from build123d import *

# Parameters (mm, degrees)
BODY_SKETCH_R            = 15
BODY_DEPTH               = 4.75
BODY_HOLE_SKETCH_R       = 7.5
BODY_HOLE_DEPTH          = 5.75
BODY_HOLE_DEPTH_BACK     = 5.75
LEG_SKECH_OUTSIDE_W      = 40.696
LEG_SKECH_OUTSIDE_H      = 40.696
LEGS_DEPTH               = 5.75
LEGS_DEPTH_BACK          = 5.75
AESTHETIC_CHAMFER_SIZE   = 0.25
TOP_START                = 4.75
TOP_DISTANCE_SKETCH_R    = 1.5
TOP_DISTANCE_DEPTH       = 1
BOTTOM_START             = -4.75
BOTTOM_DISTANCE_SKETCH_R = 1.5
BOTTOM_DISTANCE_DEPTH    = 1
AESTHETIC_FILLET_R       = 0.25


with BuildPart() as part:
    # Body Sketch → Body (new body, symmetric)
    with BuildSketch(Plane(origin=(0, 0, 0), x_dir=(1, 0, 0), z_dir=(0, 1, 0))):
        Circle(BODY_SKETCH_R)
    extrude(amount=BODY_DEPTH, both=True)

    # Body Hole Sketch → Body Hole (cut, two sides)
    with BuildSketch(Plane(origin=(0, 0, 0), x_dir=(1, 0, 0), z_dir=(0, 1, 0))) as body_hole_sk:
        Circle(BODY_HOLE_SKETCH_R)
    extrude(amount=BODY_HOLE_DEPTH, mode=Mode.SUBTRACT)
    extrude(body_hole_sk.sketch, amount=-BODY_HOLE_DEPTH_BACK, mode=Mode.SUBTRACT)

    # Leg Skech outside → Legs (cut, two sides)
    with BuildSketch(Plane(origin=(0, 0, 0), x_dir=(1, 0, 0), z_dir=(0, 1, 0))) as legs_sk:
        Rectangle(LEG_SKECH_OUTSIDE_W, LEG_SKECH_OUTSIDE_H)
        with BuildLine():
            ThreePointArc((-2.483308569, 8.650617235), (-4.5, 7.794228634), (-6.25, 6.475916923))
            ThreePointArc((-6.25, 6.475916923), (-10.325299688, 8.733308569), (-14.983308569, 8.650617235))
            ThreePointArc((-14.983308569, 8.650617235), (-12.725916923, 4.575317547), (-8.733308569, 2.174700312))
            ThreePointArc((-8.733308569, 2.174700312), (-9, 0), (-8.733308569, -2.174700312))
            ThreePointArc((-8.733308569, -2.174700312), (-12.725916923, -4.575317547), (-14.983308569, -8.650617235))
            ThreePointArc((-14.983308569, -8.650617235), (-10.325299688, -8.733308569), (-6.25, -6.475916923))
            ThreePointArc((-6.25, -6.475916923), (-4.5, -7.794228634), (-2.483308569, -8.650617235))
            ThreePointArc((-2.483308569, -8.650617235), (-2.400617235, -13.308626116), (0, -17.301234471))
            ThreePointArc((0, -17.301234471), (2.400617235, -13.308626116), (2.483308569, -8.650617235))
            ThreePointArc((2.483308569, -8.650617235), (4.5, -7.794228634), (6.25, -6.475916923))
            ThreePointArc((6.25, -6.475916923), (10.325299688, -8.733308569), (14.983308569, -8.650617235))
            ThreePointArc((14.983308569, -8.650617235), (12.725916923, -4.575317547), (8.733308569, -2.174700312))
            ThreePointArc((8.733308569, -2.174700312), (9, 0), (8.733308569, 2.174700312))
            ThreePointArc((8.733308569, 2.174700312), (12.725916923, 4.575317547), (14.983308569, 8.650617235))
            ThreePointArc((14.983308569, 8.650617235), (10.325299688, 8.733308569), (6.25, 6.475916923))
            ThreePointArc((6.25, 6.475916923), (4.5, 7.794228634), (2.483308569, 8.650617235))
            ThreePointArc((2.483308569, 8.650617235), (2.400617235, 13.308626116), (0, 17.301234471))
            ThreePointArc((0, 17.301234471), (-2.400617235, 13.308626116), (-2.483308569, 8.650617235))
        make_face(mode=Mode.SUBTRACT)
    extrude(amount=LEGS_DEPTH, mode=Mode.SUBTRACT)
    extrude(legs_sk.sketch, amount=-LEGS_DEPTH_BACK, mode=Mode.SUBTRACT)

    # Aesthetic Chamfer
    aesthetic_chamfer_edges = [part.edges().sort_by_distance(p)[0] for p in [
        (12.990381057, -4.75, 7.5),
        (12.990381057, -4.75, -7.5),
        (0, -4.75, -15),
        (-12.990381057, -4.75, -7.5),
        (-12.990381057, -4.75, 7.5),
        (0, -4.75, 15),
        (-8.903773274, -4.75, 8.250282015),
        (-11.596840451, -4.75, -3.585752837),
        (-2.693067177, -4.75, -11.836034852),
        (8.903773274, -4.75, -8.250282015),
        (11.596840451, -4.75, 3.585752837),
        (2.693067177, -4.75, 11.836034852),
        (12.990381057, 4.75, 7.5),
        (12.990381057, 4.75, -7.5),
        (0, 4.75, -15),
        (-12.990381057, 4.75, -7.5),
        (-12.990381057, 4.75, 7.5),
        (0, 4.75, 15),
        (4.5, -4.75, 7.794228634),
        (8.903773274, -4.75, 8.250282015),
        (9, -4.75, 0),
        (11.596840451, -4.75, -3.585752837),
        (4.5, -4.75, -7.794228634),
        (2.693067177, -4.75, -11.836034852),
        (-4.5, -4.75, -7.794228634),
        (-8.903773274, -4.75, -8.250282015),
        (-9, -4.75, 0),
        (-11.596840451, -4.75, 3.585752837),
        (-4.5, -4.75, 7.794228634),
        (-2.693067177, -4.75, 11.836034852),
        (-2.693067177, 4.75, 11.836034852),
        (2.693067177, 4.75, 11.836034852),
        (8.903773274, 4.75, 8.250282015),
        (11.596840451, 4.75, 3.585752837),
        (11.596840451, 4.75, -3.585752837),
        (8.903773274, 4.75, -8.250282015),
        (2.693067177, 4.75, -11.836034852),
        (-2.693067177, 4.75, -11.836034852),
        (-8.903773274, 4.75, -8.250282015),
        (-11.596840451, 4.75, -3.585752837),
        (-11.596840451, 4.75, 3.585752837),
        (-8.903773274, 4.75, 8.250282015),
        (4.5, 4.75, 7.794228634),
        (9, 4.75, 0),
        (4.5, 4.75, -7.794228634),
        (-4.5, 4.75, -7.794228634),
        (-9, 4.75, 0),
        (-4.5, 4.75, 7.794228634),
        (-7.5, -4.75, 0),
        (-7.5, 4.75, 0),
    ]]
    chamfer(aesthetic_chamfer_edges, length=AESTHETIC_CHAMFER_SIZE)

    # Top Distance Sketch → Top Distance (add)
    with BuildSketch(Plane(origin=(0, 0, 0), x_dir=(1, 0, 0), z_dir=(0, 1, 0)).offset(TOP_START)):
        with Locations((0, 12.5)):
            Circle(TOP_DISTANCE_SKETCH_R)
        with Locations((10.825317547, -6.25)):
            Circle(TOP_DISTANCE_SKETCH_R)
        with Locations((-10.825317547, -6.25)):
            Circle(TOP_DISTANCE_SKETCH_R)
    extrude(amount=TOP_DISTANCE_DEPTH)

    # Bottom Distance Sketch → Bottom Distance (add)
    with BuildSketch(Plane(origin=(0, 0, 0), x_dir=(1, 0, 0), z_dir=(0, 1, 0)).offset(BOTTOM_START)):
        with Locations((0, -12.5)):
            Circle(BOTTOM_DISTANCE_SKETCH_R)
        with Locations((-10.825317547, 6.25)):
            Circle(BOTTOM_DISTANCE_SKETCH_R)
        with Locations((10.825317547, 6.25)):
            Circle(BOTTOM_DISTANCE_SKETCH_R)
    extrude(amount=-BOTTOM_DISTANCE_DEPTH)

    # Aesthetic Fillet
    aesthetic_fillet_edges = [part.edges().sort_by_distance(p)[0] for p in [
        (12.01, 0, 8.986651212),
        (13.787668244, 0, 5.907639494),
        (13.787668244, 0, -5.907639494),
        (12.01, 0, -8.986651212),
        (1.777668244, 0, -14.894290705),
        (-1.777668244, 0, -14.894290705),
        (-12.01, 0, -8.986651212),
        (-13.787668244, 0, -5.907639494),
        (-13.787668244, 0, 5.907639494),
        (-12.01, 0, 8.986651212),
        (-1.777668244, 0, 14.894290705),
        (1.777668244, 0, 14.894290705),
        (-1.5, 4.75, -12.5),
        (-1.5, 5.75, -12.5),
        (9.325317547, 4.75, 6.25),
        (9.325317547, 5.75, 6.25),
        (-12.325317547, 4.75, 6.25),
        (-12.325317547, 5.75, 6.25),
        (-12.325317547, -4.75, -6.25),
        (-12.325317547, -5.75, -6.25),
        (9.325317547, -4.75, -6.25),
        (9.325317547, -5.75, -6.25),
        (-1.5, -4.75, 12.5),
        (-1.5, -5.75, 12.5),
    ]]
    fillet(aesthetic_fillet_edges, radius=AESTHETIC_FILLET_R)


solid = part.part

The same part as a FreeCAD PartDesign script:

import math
import FreeCAD as App
import Part
import Sketcher


def edges_at(feature, points):
    """Names of the edges that pass closest to the given points."""
    edges = feature.Shape.Edges
    near = lambda p: min(range(len(edges)), key=lambda i: edges[i].distToShape(Part.Vertex(*p))[0])
    return sorted({f"Edge{near(p) + 1}" for p in points})

doc = App.newDocument("Part")
body = doc.addObject("PartDesign::Body", "Body")

# Sketch on XZ plane
sketch1 = body.newObject("Sketcher::SketchObject", "Sketch")
sketch1.AttachmentSupport = (doc.getObject("XZ_Plane"), [""])
sketch1.MapMode = "FlatFace"
sketch1.addGeometry(Part.Circle(App.Vector(0, 0, 0), App.Vector(0, 0, 1), 15), False)
sketch1.addConstraint([
    Sketcher.Constraint("Coincident", 0, 3, -1, 1),
    Sketcher.Constraint("Diameter", 0, 30.0),
])
pad1 = body.newObject("PartDesign::Pad", "Pad")
pad1.Profile = sketch1
pad1.Length = 9.5
pad1.Midplane = True

# Sketch on XZ plane
sketch2 = body.newObject("Sketcher::SketchObject", "Sketch001")
sketch2.AttachmentSupport = (doc.getObject("XZ_Plane"), [""])
sketch2.MapMode = "FlatFace"
sketch2.addGeometry(Part.Circle(App.Vector(0, 0, 0), App.Vector(0, 0, 1), 7.5), False)
sketch2.addConstraint([
    Sketcher.Constraint("Coincident", 0, 3, -1, 1),
    Sketcher.Constraint("Diameter", 0, 15.0),
])
pocket1 = body.newObject("PartDesign::Pocket", "Pocket")
pocket1.Profile = sketch2
pocket1.Type = "ThroughAll"
pocket1.Midplane = True

# Sketch on XZ plane
sketch3 = body.newObject("Sketcher::SketchObject", "Sketch002")
sketch3.AttachmentSupport = (doc.getObject("XZ_Plane"), [""])
sketch3.MapMode = "FlatFace"
sketch3.addGeometry([
    Part.LineSegment(App.Vector(-20.348, -20.348, 0), App.Vector(-20.348, 20.348, 0)),  # 0
    Part.LineSegment(App.Vector(-20.348, 20.348, 0), App.Vector(20.348, 20.348, 0)),  # 1
    Part.LineSegment(App.Vector(20.348, 20.348, 0), App.Vector(20.348, -20.348, 0)),  # 2
    Part.LineSegment(App.Vector(20.348, -20.348, 0), App.Vector(-20.348, -20.348, 0)),  # 3
    Part.ArcOfCircle(Part.Circle(App.Vector(0, 0, 0), App.Vector(0, 0, 1), 9), math.radians(-133.982963), math.radians(-106.017037)),  # 4
    Part.ArcOfCircle(Part.Circle(App.Vector(6.25, -10.825318, 0), App.Vector(0, 0, 1), 9), math.radians(166.017037), math.radians(226.017037)),  # 5
    Part.ArcOfCircle(Part.Circle(App.Vector(-6.25, -10.825318, 0), App.Vector(0, 0, 1), 9), math.radians(-46.017037), math.radians(13.982963)),  # 6
    Part.ArcOfCircle(Part.Circle(App.Vector(0, 0, 0), App.Vector(0, 0, 1), 9), math.radians(-73.982963), math.radians(-46.017037)),  # 7
    Part.ArcOfCircle(Part.Circle(App.Vector(12.5, 0, 0), App.Vector(0, 0, 1), 9), math.radians(-133.982963), math.radians(-73.982963)),  # 8
    Part.ArcOfCircle(Part.Circle(App.Vector(6.25, -10.825318, 0), App.Vector(0, 0, 1), 9), math.radians(13.982963), math.radians(73.982963)),  # 9
    Part.ArcOfCircle(Part.Circle(App.Vector(0, 0, 0), App.Vector(0, 0, 1), 9), math.radians(-13.982963), math.radians(13.982963)),  # 10
    Part.ArcOfCircle(Part.Circle(App.Vector(6.25, 10.825318, 0), App.Vector(0, 0, 1), 9), math.radians(-73.982963), math.radians(-13.982963)),  # 11
    Part.ArcOfCircle(Part.Circle(App.Vector(12.5, 0, 0), App.Vector(0, 0, 1), 9), math.radians(73.982963), math.radians(133.982963)),  # 12
    Part.ArcOfCircle(Part.Circle(App.Vector(0, 0, 0), App.Vector(0, 0, 1), 9), math.radians(46.017037), math.radians(73.982963)),  # 13
    Part.ArcOfCircle(Part.Circle(App.Vector(-6.25, 10.825318, 0), App.Vector(0, 0, 1), 9), math.radians(-13.982963), math.radians(46.017037)),  # 14
    Part.ArcOfCircle(Part.Circle(App.Vector(6.25, 10.825318, 0), App.Vector(0, 0, 1), 9), math.radians(133.982963), math.radians(193.982963)),  # 15
    Part.ArcOfCircle(Part.Circle(App.Vector(0, 0, 0), App.Vector(0, 0, 1), 9), math.radians(106.017037), math.radians(133.982963)),  # 16
    Part.ArcOfCircle(Part.Circle(App.Vector(-12.5, 0, 0), App.Vector(0, 0, 1), 9), math.radians(46.017037), math.radians(106.017037)),  # 17
    Part.ArcOfCircle(Part.Circle(App.Vector(-6.25, 10.825318, 0), App.Vector(0, 0, 1), 9), math.radians(-166.017037), math.radians(-106.017037)),  # 18
    Part.ArcOfCircle(Part.Circle(App.Vector(0, 0, 0), App.Vector(0, 0, 1), 9), math.radians(166.017037), math.radians(193.982963)),  # 19
    Part.ArcOfCircle(Part.Circle(App.Vector(-6.25, -10.825318, 0), App.Vector(0, 0, 1), 9), math.radians(106.017037), math.radians(166.017037)),  # 20
    Part.ArcOfCircle(Part.Circle(App.Vector(-12.5, 0, 0), App.Vector(0, 0, 1), 9), math.radians(-106.017037), math.radians(-46.017037)),  # 21
], False)
sketch3.addConstraint([
    Sketcher.Constraint("Coincident", 0, 2, 1, 1),
    Sketcher.Constraint("Coincident", 1, 2, 2, 1),
    Sketcher.Constraint("Coincident", 2, 2, 3, 1),
    Sketcher.Constraint("Coincident", 3, 2, 0, 1),
    Sketcher.Constraint("Coincident", 4, 2, 5, 1),
    Sketcher.Constraint("Coincident", 5, 2, 6, 1),
    Sketcher.Constraint("Coincident", 6, 2, 7, 1),
    Sketcher.Constraint("Coincident", 7, 2, 8, 1),
    Sketcher.Constraint("Coincident", 8, 2, 9, 1),
    Sketcher.Constraint("Coincident", 9, 2, 10, 1),
    Sketcher.Constraint("Coincident", 10, 2, 11, 1),
    Sketcher.Constraint("Coincident", 11, 2, 12, 1),
    Sketcher.Constraint("Coincident", 12, 2, 13, 1),
    Sketcher.Constraint("Coincident", 13, 2, 14, 1),
    Sketcher.Constraint("Coincident", 14, 2, 15, 1),
    Sketcher.Constraint("Coincident", 15, 2, 16, 1),
    Sketcher.Constraint("Coincident", 16, 2, 17, 1),
    Sketcher.Constraint("Coincident", 17, 2, 18, 1),
    Sketcher.Constraint("Coincident", 18, 2, 19, 1),
    Sketcher.Constraint("Coincident", 19, 2, 20, 1),
    Sketcher.Constraint("Coincident", 20, 2, 21, 1),
    Sketcher.Constraint("Coincident", 21, 2, 4, 1),
    Sketcher.Constraint("Vertical", 0),
    Sketcher.Constraint("Horizontal", 1),
    Sketcher.Constraint("Vertical", 2),
    Sketcher.Constraint("Horizontal", 3),
    Sketcher.Constraint("Coincident", 4, 3, -1, 1),
    Sketcher.Constraint("Coincident", 7, 3, -1, 1),
    Sketcher.Constraint("Coincident", 10, 3, -1, 1),
    Sketcher.Constraint("Coincident", 13, 3, -1, 1),
    Sketcher.Constraint("Coincident", 16, 3, -1, 1),
    Sketcher.Constraint("Coincident", 19, 3, -1, 1),
    Sketcher.Constraint("Coincident", 9, 3, 5, 3),
    Sketcher.Constraint("Coincident", 12, 3, 8, 3),
    Sketcher.Constraint("Coincident", 15, 3, 11, 3),
    Sketcher.Constraint("Coincident", 18, 3, 14, 3),
    Sketcher.Constraint("Coincident", 20, 3, 6, 3),
    Sketcher.Constraint("Coincident", 21, 3, 17, 3),
    Sketcher.Constraint("Equal", 4, 5),
    Sketcher.Constraint("Equal", 5, 6),
    Sketcher.Constraint("Equal", 6, 7),
    Sketcher.Constraint("Equal", 7, 8),
    Sketcher.Constraint("Equal", 8, 9),
    Sketcher.Constraint("Equal", 9, 10),
    Sketcher.Constraint("Equal", 10, 11),
    Sketcher.Constraint("Equal", 11, 12),
    Sketcher.Constraint("Equal", 12, 13),
    Sketcher.Constraint("Equal", 13, 14),
    Sketcher.Constraint("Equal", 14, 15),
    Sketcher.Constraint("Equal", 15, 16),
    Sketcher.Constraint("Equal", 16, 17),
    Sketcher.Constraint("Equal", 17, 18),
    Sketcher.Constraint("Equal", 18, 19),
    Sketcher.Constraint("Equal", 19, 20),
    Sketcher.Constraint("Equal", 20, 21),
    Sketcher.Constraint("Symmetric", 6, 3, 11, 3, -1, 1),
    Sketcher.Constraint("Symmetric", 5, 3, 14, 3, -1, 1),
    Sketcher.Constraint("Symmetric", 8, 3, 17, 3, -1, 1),
    Sketcher.Constraint("Symmetric", 0, 2, 2, 2, -1, 1),
    Sketcher.Constraint("Symmetric", 5, 3, 6, 3, -2),
    Sketcher.Constraint("PointOnObject", 8, 3, -1),
    Sketcher.Constraint("Horizontal", 6, 2, 8, 2),
    Sketcher.Constraint("Equal", 3, 0),
    Sketcher.Constraint("Radius", 4, 9.0),
    Sketcher.Constraint("DistanceX", -1, 1, 8, 3, 12.5),
    Sketcher.Constraint("DistanceX", 1, 1, 1, 2, 40.696),
    Sketcher.Constraint("DistanceY", 9, 2, -1, 1, 2.1747),
])
pocket2 = body.newObject("PartDesign::Pocket", "Pocket001")
pocket2.Profile = sketch3
pocket2.Type = "ThroughAll"
pocket2.Midplane = True
doc.recompute()

chamfer = body.newObject("PartDesign::Chamfer", "Chamfer")
chamfer.Base = (pocket2, edges_at(pocket2, [
    (12.99, -4.75, 7.5),
    (12.99, -4.75, -7.5),
    (0, -4.75, -15),
    (-12.99, -4.75, -7.5),
    (-12.99, -4.75, 7.5),
    (0, -4.75, 15),
    (-8.904, -4.75, 8.25),
    (-11.597, -4.75, -3.586),
    (-2.693, -4.75, -11.836),
    (8.904, -4.75, -8.25),
    (11.597, -4.75, 3.586),
    (2.693, -4.75, 11.836),
    (12.99, 4.75, 7.5),
    (12.99, 4.75, -7.5),
    (0, 4.75, -15),
    (-12.99, 4.75, -7.5),
    (-12.99, 4.75, 7.5),
    (0, 4.75, 15),
    (4.5, -4.75, 7.794),
    (8.904, -4.75, 8.25),
    (9, -4.75, 0),
    (11.597, -4.75, -3.586),
    (4.5, -4.75, -7.794),
    (2.693, -4.75, -11.836),
    (-4.5, -4.75, -7.794),
    (-8.904, -4.75, -8.25),
    (-9, -4.75, 0),
    (-11.597, -4.75, 3.586),
    (-4.5, -4.75, 7.794),
    (-2.693, -4.75, 11.836),
    (-2.693, 4.75, 11.836),
    (2.693, 4.75, 11.836),
    (8.904, 4.75, 8.25),
    (11.597, 4.75, 3.586),
    (11.597, 4.75, -3.586),
    (8.904, 4.75, -8.25),
    (2.693, 4.75, -11.836),
    (-2.693, 4.75, -11.836),
    (-8.904, 4.75, -8.25),
    (-11.597, 4.75, -3.586),
    (-11.597, 4.75, 3.586),
    (-8.904, 4.75, 8.25),
    (4.5, 4.75, 7.794),
    (9, 4.75, 0),
    (4.5, 4.75, -7.794),
    (-4.5, 4.75, -7.794),
    (-9, 4.75, 0),
    (-4.5, 4.75, 7.794),
    (-7.5, -4.75, 0),
    (-7.5, 4.75, 0),
]))
chamfer.Size = 0.25

# Sketch on XZ plane
sketch4 = body.newObject("Sketcher::SketchObject", "Sketch003")
sketch4.AttachmentSupport = (doc.getObject("XZ_Plane"), [""])
sketch4.MapMode = "FlatFace"
sketch4.AttachmentOffset = App.Placement(App.Vector(0, 0, -4.75), App.Rotation())
sketch4.addGeometry([
    Part.Circle(App.Vector(0, -12.5, 0), App.Vector(0, 0, 1), 1.5),
    Part.Circle(App.Vector(10.825318, 6.25, 0), App.Vector(0, 0, 1), 1.5),
    Part.Circle(App.Vector(-10.825318, 6.25, 0), App.Vector(0, 0, 1), 1.5),
], False)
sketch4.addConstraint([
    Sketcher.Constraint("Equal", 0, 1),
    Sketcher.Constraint("Equal", 1, 2),
    Sketcher.Constraint("Symmetric", 1, 3, 2, 3, -2),
    Sketcher.Constraint("PointOnObject", 0, 3, -2),
    Sketcher.Constraint("Diameter", 0, 3.0),
    Sketcher.Constraint("DistanceY", 0, 3, -1, 1, 12.5),
    Sketcher.Constraint("DistanceY", -1, 1, 1, 3, 6.25),
    Sketcher.Constraint("DistanceX", -1, 1, 1, 3, 10.825318),
])
pad2 = body.newObject("PartDesign::Pad", "Pad001")
pad2.Profile = sketch4
pad2.Length = 1
pad2.Reversed = True

# Sketch on XZ plane
sketch5 = body.newObject("Sketcher::SketchObject", "Sketch004")
sketch5.AttachmentSupport = (doc.getObject("XZ_Plane"), [""])
sketch5.MapMode = "FlatFace"
sketch5.AttachmentOffset = App.Placement(App.Vector(0, 0, 4.75), App.Rotation())
sketch5.addGeometry([
    Part.Circle(App.Vector(0, 12.5, 0), App.Vector(0, 0, 1), 1.5),
    Part.Circle(App.Vector(-10.825318, -6.25, 0), App.Vector(0, 0, 1), 1.5),
    Part.Circle(App.Vector(10.825318, -6.25, 0), App.Vector(0, 0, 1), 1.5),
], False)
sketch5.addConstraint([
    Sketcher.Constraint("Equal", 0, 1),
    Sketcher.Constraint("Equal", 1, 2),
    Sketcher.Constraint("Symmetric", 1, 3, 2, 3, -2),
    Sketcher.Constraint("PointOnObject", 0, 3, -2),
    Sketcher.Constraint("Diameter", 0, 3.0),
    Sketcher.Constraint("DistanceY", -1, 1, 0, 3, 12.5),
    Sketcher.Constraint("DistanceY", 1, 3, -1, 1, 6.25),
    Sketcher.Constraint("DistanceX", 1, 3, -1, 1, 10.825318),
])
pad3 = body.newObject("PartDesign::Pad", "Pad002")
pad3.Profile = sketch5
pad3.Length = 1
doc.recompute()

fillet = body.newObject("PartDesign::Fillet", "Fillet")
fillet.Base = (pad3, edges_at(pad3, [
    (12.01, 0, 8.987),
    (13.788, 0, 5.908),
    (13.788, 0, -5.908),
    (12.01, 0, -8.987),
    (1.778, 0, -14.894),
    (-1.778, 0, -14.894),
    (-12.01, 0, -8.987),
    (-13.788, 0, -5.908),
    (-13.788, 0, 5.908),
    (-12.01, 0, 8.987),
    (-1.778, 0, 14.894),
    (1.778, 0, 14.894),
    (-1.5, 4.75, -12.5),
    (-1.5, 5.75, -12.5),
    (9.325, 4.75, 6.25),
    (9.325, 5.75, 6.25),
    (-12.325, 4.75, 6.25),
    (-12.325, 5.75, 6.25),
    (-12.325, -4.75, -6.25),
    (-12.325, -5.75, -6.25),
    (9.325, -4.75, -6.25),
    (9.325, -5.75, -6.25),
    (-1.5, -4.75, 12.5),
    (-1.5, -5.75, 12.5),
]))
fillet.Radius = 0.25

doc.recompute()
